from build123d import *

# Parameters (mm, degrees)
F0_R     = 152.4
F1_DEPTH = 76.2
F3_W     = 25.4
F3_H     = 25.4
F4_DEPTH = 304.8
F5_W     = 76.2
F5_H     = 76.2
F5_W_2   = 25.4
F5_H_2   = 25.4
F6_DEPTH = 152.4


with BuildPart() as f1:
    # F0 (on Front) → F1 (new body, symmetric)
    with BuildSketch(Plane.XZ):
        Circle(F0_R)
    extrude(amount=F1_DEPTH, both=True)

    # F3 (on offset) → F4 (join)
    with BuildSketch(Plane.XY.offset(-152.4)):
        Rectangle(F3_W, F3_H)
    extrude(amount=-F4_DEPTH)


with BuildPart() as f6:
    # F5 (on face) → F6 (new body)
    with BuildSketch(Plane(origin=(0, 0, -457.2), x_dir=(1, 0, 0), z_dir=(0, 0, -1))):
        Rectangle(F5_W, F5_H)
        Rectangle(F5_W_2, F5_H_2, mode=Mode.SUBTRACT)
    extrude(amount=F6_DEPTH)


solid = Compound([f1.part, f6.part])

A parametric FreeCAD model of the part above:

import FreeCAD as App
import Part
import Sketcher
from FreeCAD import Vector
Q = App.Units.Quantity

doc = App.newDocument("Part")
params = doc.addObject("Spreadsheet::Sheet", "Params")
for row, (alias, value) in enumerate([
    ("sketch1_diameter", "12 in"),
    ("pad1_length", "6 in"),
    ("sketch2_width", "1 in"),
    ("pad2_length", "12 in"),
    ("sketch3_width", "3 in"),
    ("sketch3_width2", "1 in"),
    ("pad3_length", "6 in"),
], start=1):
    params.set(f"A{row}", alias)
    params.set(f"B{row}", "=" + value)
    params.setAlias(f"B{row}", alias)

body = doc.addObject("PartDesign::Body", "Body")
body.AllowCompound = True

# Sketch on XZ plane
sketch1 = body.newObject("Sketcher::SketchObject", "Sketch")
sketch1.AttachmentSupport = (doc.getObject("XZ_Plane"), [""])
sketch1.MapMode = "FlatFace"
sketch1.addGeometry(Part.Circle(Vector(0, 0, 0), Vector(0, 0, 1), 152), False)
sketch1.addConstraint([
    Sketcher.Constraint("Coincident", 0, 3, -1, 1),
    Sketcher.Constraint("Diameter", 0, Q("12 in")),
])
sketch1.setExpression("Constraints[1]", "Params.sketch1_diameter")
pad1 = body.newObject("PartDesign::Pad", "Pad")
pad1.Profile = sketch1
pad1.setExpression("Length", "Params.pad1_length")
pad1.Midplane = True

# Sketch on XY plane
sketch2 = body.newObject("Sketcher::SketchObject", "Sketch001")
sketch2.AttachmentSupport = (doc.getObject("XY_Plane"), [""])
sketch2.MapMode = "FlatFace"
sketch2.AttachmentOffset = App.Placement(Vector(0, 0, -6 * 25.4), App.Rotation())
sketch2.addGeometry([
    Part.LineSegment(Vector(-13, 13, 0), Vector(-13, -13, 0)),
    Part.LineSegment(Vector(-13, -13, 0), Vector(13, -13, 0)),
    Part.LineSegment(Vector(13, -13, 0), Vector(13, 13, 0)),
    Part.LineSegment(Vector(13, 13, 0), Vector(-13, 13, 0)),
], False)
sketch2.addConstraint([
    Sketcher.Constraint("Coincident", 0, 2, 1, 1),
    Sketcher.Constraint("Coincident", 1, 2, 2, 1),
    Sketcher.Constraint("Coincident", 2, 2, 3, 1),
    Sketcher.Constraint("Coincident", 3, 2, 0, 1),
    Sketcher.Constraint("Vertical", 0),
    Sketcher.Constraint("Horizontal", 1),
    Sketcher.Constraint("Vertical", 2),
    Sketcher.Constraint("Horizontal", 3),
    Sketcher.Constraint("Symmetric", 0, 2, 2, 2, -1, 1),
    Sketcher.Constraint("Equal", 3, 0),
    Sketcher.Constraint("DistanceX", 1, 1, 1, 2, Q("1 in")),
])
sketch2.setExpression("Constraints[10]", "Params.sketch2_width")
pad2 = body.newObject("PartDesign::Pad", "Pad001")
pad2.Profile = sketch2
pad2.setExpression("Length", "Params.pad2_length")
pad2.Reversed = True
body2 = doc.addObject("PartDesign::Body", "Body001")

# Sketch on XY plane
sketch3 = body2.newObject("Sketcher::SketchObject", "Sketch002")
sketch3.AttachmentSupport = (doc.getObject("XY_Plane001"), [""])
sketch3.MapMode = "FlatFace"
sketch3.AttachmentOffset = App.Placement(Vector(0, 0, -18 * 25.4), App.Rotation())
sketch3.addGeometry([
    Part.LineSegment(Vector(-38, -38, 0), Vector(-38, 38, 0)),  # 0
    Part.LineSegment(Vector(-38, 38, 0), Vector(38, 38, 0)),  # 1
    Part.LineSegment(Vector(38, 38, 0), Vector(38, -38, 0)),  # 2
    Part.LineSegment(Vector(38, -38, 0), Vector(-38, -38, 0)),  # 3
    Part.LineSegment(Vector(13, 13, 0), Vector(-13, 13, 0)),  # 4
    Part.LineSegment(Vector(-13, 13, 0), Vector(-13, -13, 0)),  # 5
    Part.LineSegment(Vector(-13, -13, 0), Vector(13, -13, 0)),  # 6
    Part.LineSegment(Vector(13, -13, 0), Vector(13, 13, 0)),  # 7
], False)
sketch3.addConstraint([
    Sketcher.Constraint("Coincident", 0, 2, 1, 1),
    Sketcher.Constraint("Coincident", 1, 2, 2, 1),
    Sketcher.Constraint("Coincident", 2, 2, 3, 1),
    Sketcher.Constraint("Coincident", 3, 2, 0, 1),
    Sketcher.Constraint("Coincident", 4, 2, 5, 1),
    Sketcher.Constraint("Coincident", 5, 2, 6, 1),
    Sketcher.Constraint("Coincident", 6, 2, 7, 1),
    Sketcher.Constraint("Coincident", 7, 2, 4, 1),
    Sketcher.Constraint("Vertical", 0),
    Sketcher.Constraint("Horizontal", 1),
    Sketcher.Constraint("Vertical", 2),
    Sketcher.Constraint("Horizontal", 3),
    Sketcher.Constraint("Horizontal", 4),
    Sketcher.Constraint("Vertical", 5),
    Sketcher.Constraint("Horizontal", 6),
    Sketcher.Constraint("Vertical", 7),
    Sketcher.Constraint("Symmetric", 0, 2, 2, 2, -1, 1),
    Sketcher.Constraint("Symmetric", 4, 2, 6, 2, -1, 1),
    Sketcher.Constraint("Equal", 3, 0),
    Sketcher.Constraint("Equal", 6, 5),
    Sketcher.Constraint("DistanceX", 1, 1, 1, 2, Q("3 in")),
    Sketcher.Constraint("DistanceX", 4, 2, 4, 1, Q("1 in")),
])
sketch3.setExpression("Constraints[20]", "Params.sketch3_width")
sketch3.setExpression("Constraints[21]", "Params.sketch3_width2")
pad3 = body2.newObject("PartDesign::Pad", "Pad002")
pad3.Profile = sketch3
pad3.setExpression("Length", "Params.pad3_length")
pad3.Reversed = True

doc.recompute()
